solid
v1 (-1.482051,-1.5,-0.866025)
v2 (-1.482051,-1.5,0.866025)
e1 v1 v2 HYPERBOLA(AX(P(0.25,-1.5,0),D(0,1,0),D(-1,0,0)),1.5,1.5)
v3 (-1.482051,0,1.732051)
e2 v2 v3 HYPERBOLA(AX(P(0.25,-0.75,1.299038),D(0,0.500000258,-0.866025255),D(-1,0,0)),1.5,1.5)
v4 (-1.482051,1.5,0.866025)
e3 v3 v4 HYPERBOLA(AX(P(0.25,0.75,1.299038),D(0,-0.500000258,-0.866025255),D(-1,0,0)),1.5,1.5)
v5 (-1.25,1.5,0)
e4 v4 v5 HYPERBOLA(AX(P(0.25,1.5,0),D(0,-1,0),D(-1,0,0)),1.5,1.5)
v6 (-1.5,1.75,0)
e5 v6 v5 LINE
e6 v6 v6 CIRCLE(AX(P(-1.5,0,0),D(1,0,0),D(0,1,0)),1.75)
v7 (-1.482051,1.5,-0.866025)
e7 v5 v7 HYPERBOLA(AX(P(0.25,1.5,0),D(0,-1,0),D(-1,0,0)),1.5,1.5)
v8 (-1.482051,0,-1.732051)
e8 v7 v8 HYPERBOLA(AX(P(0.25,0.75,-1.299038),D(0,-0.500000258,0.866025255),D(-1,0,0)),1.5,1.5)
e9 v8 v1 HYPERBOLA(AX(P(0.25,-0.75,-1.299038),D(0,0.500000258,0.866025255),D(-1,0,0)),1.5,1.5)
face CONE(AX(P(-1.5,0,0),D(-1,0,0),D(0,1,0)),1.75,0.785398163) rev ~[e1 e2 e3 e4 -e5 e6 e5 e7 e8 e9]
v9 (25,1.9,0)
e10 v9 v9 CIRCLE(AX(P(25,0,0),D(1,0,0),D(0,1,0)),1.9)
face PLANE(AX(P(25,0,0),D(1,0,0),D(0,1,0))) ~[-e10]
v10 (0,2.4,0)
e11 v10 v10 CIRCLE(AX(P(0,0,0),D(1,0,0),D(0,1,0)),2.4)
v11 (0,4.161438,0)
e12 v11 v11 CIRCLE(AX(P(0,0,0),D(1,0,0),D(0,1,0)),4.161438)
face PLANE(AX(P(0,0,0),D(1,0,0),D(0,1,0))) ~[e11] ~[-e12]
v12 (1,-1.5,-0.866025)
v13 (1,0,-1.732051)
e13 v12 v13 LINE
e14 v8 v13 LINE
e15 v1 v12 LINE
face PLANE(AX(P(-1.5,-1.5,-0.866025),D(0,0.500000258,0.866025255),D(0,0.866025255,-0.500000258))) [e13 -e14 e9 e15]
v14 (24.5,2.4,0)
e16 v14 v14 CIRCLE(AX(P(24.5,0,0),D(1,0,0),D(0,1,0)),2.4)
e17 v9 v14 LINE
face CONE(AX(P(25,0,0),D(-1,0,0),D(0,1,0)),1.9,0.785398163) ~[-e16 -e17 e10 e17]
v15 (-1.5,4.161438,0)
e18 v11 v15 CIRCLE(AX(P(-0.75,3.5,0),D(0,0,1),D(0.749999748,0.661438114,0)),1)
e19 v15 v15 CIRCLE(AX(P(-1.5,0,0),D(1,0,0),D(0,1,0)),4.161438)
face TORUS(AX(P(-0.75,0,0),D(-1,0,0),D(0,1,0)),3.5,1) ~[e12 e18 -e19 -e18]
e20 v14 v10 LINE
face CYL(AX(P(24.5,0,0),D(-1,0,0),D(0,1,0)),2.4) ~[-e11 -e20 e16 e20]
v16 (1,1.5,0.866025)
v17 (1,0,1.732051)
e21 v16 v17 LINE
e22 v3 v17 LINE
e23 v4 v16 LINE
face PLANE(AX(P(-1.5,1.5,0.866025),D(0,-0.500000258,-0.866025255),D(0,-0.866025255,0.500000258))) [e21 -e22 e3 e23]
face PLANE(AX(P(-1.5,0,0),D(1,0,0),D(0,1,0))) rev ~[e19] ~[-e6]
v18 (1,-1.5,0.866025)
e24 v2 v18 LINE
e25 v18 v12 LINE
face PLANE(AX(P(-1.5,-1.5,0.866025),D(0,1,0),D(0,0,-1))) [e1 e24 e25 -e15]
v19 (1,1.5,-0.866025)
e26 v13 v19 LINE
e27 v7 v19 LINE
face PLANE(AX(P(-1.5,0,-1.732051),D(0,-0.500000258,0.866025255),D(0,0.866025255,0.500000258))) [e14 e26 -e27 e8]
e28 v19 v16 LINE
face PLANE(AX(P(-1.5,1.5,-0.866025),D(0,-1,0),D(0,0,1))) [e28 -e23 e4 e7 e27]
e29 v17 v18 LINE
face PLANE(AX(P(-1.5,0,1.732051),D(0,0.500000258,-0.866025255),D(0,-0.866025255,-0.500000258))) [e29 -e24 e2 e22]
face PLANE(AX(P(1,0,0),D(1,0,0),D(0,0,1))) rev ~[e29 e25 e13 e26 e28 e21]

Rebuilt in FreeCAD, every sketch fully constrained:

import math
import FreeCAD as App
import Part
import Sketcher
from FreeCAD import Vector
Q = App.Units.Quantity

doc = App.newDocument("Part")
body = doc.addObject("PartDesign::Body", "Body")

# Sketch on XY plane
sketch1 = body.newObject("Sketcher::SketchObject", "Sketch")
sketch1.AttachmentSupport = (doc.getObject("XY_Plane"), [""])
sketch1.MapMode = "FlatFace"
sketch1.addGeometry([
    Part.LineSegment(Vector(-1.5, 4.161438, 0), Vector(-1.5, 1.75, 0)),  # 0
    Part.LineSegment(Vector(-1.5, 1.75, 0), Vector(0.25, 0, 0)),  # 1
    Part.LineSegment(Vector(0.25, 0, 0), Vector(25, 0, 0)),  # 2
    Part.LineSegment(Vector(25, 0, 0), Vector(25, 1.9, 0)),  # 3
    Part.LineSegment(Vector(25, 1.9, 0), Vector(24.5, 2.4, 0)),  # 4
    Part.LineSegment(Vector(24.5, 2.4, 0), Vector(0, 2.4, 0)),  # 5
    Part.LineSegment(Vector(0, 2.4, 0), Vector(0, 4.161438, 0)),  # 6
    Part.ArcOfCircle(Part.Circle(Vector(-0.75, 3.5, 0), Vector(0, 0, 1), 1), math.radians(41.409644), math.radians(138.590356)),  # 7
], False)
sketch1.addConstraint([
    Sketcher.Constraint("Coincident", 0, 2, 1, 1),
    Sketcher.Constraint("Coincident", 1, 2, 2, 1),
    Sketcher.Constraint("Coincident", 2, 2, 3, 1),
    Sketcher.Constraint("Coincident", 3, 2, 4, 1),
    Sketcher.Constraint("Coincident", 4, 2, 5, 1),
    Sketcher.Constraint("Coincident", 5, 2, 6, 1),
    Sketcher.Constraint("Coincident", 6, 2, 7, 1),
    Sketcher.Constraint("Coincident", 7, 2, 0, 1),
    Sketcher.Constraint("Vertical", 0),
    Sketcher.Constraint("Horizontal", 2),
    Sketcher.Constraint("Vertical", 3),
    Sketcher.Constraint("Horizontal", 5),
    Sketcher.Constraint("Vertical", 6),
    Sketcher.Constraint("PointOnObject", 1, 2, -1),
    Sketcher.Constraint("PointOnObject", 5, 2, -2),
    Sketcher.Constraint("Parallel", 1, 4),
    Sketcher.Constraint("Horizontal", 6, 2, 7, 2),
    Sketcher.Constraint("Radius", 7, 1.0),
    Sketcher.Constraint("Angle", 1, Q("-45 deg")),
    Sketcher.Constraint("DistanceX", 5, 2, 5, 1, 24.5),
    Sketcher.Constraint("DistanceY", 3, 1, 3, 2, 1.9),
    Sketcher.Constraint("DistanceX", -1, 1, 2, 2, 25.0),
    Sketcher.Constraint("DistanceX", 7, 3, 1, 2, 1.0),
    Sketcher.Constraint("DistanceX", 0, 2, 4, 2, 26.0),
    Sketcher.Constraint("DistanceY", -1, 1, 7, 3, 3.5),
])
revolution = body.newObject("PartDesign::Revolution", "Revolution")
revolution.Profile = sketch1
revolution.ReferenceAxis = (sketch1, ["H_Axis"])
revolution.Angle = 360

# Sketch on YZ plane
sketch2 = body.newObject("Sketcher::SketchObject", "Sketch001")
sketch2.AttachmentSupport = (doc.getObject("YZ_Plane"), [""])
sketch2.MapMode = "FlatFace"
sketch2.AttachmentOffset = App.Placement(Vector(0, 0, -1.5), App.Rotation())
sketch2.addGeometry([
    Part.LineSegment(Vector(0, 1.732051, 0), Vector(-1.5, 0.866025, 0)),  # 0
    Part.LineSegment(Vector(-1.5, 0.866025, 0), Vector(-1.5, -0.866025, 0)),  # 1
    Part.LineSegment(Vector(-1.5, -0.866025, 0), Vector(0, -1.732051, 0)),  # 2
    Part.LineSegment(Vector(0, -1.732051, 0), Vector(1.5, -0.866025, 0)),  # 3
    Part.LineSegment(Vector(1.5, -0.866025, 0), Vector(1.5, 0.866025, 0)),  # 4
    Part.LineSegment(Vector(1.5, 0.866025, 0), Vector(0, 1.732051, 0)),  # 5
], False)
sketch2.addConstraint([
    Sketcher.Constraint("Coincident", 0, 2, 1, 1),
    Sketcher.Constraint("Coincident", 1, 2, 2, 1),
    Sketcher.Constraint("Coincident", 2, 2, 3, 1),
    Sketcher.Constraint("Coincident", 3, 2, 4, 1),
    Sketcher.Constraint("Coincident", 4, 2, 5, 1),
    Sketcher.Constraint("Coincident", 5, 2, 0, 1),
    Sketcher.Constraint("Vertical", 1),
    Sketcher.Constraint("Vertical", 4),
    Sketcher.Constraint("Symmetric", 0, 2, 3, 2, -1, 1),
    Sketcher.Constraint("Symmetric", 2, 2, 5, 2, -1, 1),
    Sketcher.Constraint("PointOnObject", 2, 2, -2),
    Sketcher.Constraint("Parallel", 2, 5),
    Sketcher.Constraint("Horizontal", 1, 2, 3, 2),
    Sketcher.Constraint("Angle", 0, Q("-149.999983 deg")),
    Sketcher.Constraint("DistanceX", 1, 2, 3, 2, 3.0),
    Sketcher.Constraint("DistanceY", 1, 2, 1, 1, 1.73205),
])
pocket1 = body.newObject("PartDesign::Pocket", "Pocket")
pocket1.Profile = sketch2
pocket1.Length = 2.5
pocket1.Reversed = True

doc.recompute()
